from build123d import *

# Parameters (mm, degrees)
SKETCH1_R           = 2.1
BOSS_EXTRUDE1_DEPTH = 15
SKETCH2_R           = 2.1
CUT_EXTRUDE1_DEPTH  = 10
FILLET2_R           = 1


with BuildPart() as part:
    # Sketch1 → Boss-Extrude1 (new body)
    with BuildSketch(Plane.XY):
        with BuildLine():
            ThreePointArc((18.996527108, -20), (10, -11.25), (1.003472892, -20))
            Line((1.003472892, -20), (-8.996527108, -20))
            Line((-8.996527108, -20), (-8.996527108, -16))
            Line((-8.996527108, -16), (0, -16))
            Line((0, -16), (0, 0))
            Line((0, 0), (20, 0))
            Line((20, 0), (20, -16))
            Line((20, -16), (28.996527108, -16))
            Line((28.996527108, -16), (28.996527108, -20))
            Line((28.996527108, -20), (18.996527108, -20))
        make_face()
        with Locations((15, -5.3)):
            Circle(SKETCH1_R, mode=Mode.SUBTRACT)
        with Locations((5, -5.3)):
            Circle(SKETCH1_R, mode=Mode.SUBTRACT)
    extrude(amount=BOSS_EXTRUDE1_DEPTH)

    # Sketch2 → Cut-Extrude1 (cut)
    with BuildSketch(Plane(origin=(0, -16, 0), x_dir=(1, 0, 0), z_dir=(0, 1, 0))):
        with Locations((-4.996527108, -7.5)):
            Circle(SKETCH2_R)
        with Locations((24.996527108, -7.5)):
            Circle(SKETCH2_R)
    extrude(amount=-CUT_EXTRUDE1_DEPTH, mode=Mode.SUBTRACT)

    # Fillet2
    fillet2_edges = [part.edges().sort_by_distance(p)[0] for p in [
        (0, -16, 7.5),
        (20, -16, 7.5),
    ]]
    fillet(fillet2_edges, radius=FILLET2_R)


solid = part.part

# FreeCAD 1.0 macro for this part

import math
import FreeCAD as App
import Part
import Sketcher
from FreeCAD import Vector


def edges_at(feature, points):
    """Names of the edges that pass closest to the given points."""
    edges = feature.Shape.Edges
    near = lambda p: min(range(len(edges)), key=lambda i: edges[i].distToShape(Part.Vertex(*p))[0])
    return sorted({f"Edge{near(p) + 1}" for p in points})

doc = App.newDocument("Part")
params = doc.addObject("Spreadsheet::Sheet", "Params")
for row, (alias, value) in enumerate([
    ("sketch1_radius", "9 mm"),
    ("sketch1_diameter", "4.2 mm"),
    ("sketch1_width", "10 mm"),
    ("sketch1_width2", "20 mm"),
    ("sketch1_height", "4 mm"),
    ("pad1_length", "15 mm"),
    ("sketch2_diameter", "4.2 mm"),
    ("pocket1_length", "10 mm"),
    ("fillet_radius", "1 mm"),
], start=1):
    params.set(f"A{row}", alias)
    params.set(f"B{row}", "=" + value)
    params.setAlias(f"B{row}", alias)

body = doc.addObject("PartDesign::Body", "Body")

# Sketch on XY plane
sketch1 = body.newObject("Sketcher::SketchObject", "Sketch")
sketch1.AttachmentSupport = (doc.getObject("XY_Plane"), [""])
sketch1.MapMode = "FlatFace"
sketch1.addGeometry([
    Part.ArcOfCircle(Part.Circle(Vector(10, -20.2, 0), Vector(0, 0, 1), 9), math.radians(2), math.radians(178)),  # 0
    Part.LineSegment(Vector(19, -20, 0), Vector(29, -20, 0)),  # 1
    Part.LineSegment(Vector(29, -20, 0), Vector(29, -16, 0)),  # 2
    Part.LineSegment(Vector(29, -16, 0), Vector(20, -16, 0)),  # 3
    Part.LineSegment(Vector(20, -16, 0), Vector(20, 0, 0)),  # 4
    Part.LineSegment(Vector(20, 0, 0), Vector(0, 0, 0)),  # 5
    Part.LineSegment(Vector(0, 0, 0), Vector(0, -16, 0)),  # 6
    Part.LineSegment(Vector(0, -16, 0), Vector(-9, -16, 0)),  # 7
    Part.LineSegment(Vector(-9, -16, 0), Vector(-9, -20, 0)),  # 8
    Part.LineSegment(Vector(-9, -20, 0), Vector(1, -20, 0)),  # 9
    Part.Circle(Vector(15, -5.3, 0), Vector(0, 0, 1), 2.1),  # 10
    Part.Circle(Vector(5, -5.3, 0), Vector(0, 0, 1), 2.1),  # 11
], False)
sketch1.addConstraint([
    Sketcher.Constraint("Coincident", 0, 1, 1, 1),
    Sketcher.Constraint("Coincident", 1, 2, 2, 1),
    Sketcher.Constraint("Coincident", 2, 2, 3, 1),
    Sketcher.Constraint("Coincident", 3, 2, 4, 1),
    Sketcher.Constraint("Coincident", 4, 2, 5, 1),
    Sketcher.Constraint("Coincident", 5, 2, 6, 1),
    Sketcher.Constraint("Coincident", 6, 2, 7, 1),
    Sketcher.Constraint("Coincident", 7, 2, 8, 1),
    Sketcher.Constraint("Coincident", 8, 2, 9, 1),
    Sketcher.Constraint("Coincident", 9, 2, 0, 2),
    Sketcher.Constraint("Horizontal", 1),
    Sketcher.Constraint("Vertical", 2),
    Sketcher.Constraint("Horizontal", 3),
    Sketcher.Constraint("Vertical", 4),
    Sketcher.Constraint("Horizontal", 5),
    Sketcher.Constraint("Vertical", 6),
    Sketcher.Constraint("Horizontal", 7),
    Sketcher.Constraint("Vertical", 8),
    Sketcher.Constraint("Horizontal", 9),
    Sketcher.Constraint("Coincident", 5, 2, -1, 1),
    Sketcher.Constraint("Equal", 10, 11),
    Sketcher.Constraint("Horizontal", 10, 3, 11, 3),
    Sketcher.Constraint("Horizontal", 3, 2, 6, 2),
    Sketcher.Constraint("Horizontal", 1, 2, 8, 2),
    Sketcher.Constraint("Equal", 3, 7),
    Sketcher.Constraint("Equal", 1, 9),
    Sketcher.Constraint("Radius", 0, 9.0),
    Sketcher.Constraint("Diameter", 10, 4.2),
    Sketcher.Constraint("DistanceX", 1, 1, 1, 2, 10.0),
    Sketcher.Constraint("DistanceX", 5, 2, 5, 1, 20.0),
    Sketcher.Constraint("DistanceY", 2, 1, 2, 2, 4.0),
    Sketcher.Constraint("DistanceY", 4, 1, 4, 2, 16.0),
    Sketcher.Constraint("DistanceX", -1, 1, 10, 3, 15.0),
    Sketcher.Constraint("DistanceX", -1, 1, 11, 3, 5.0),
    Sketcher.Constraint("DistanceY", 10, 3, -1, 1, 5.3),
    Sketcher.Constraint("DistanceY", 0, 3, -1, 1, 20.25),
])
sketch1.setExpression("Constraints[26]", "Params.sketch1_radius")
sketch1.setExpression("Constraints[27]", "Params.sketch1_diameter")
sketch1.setExpression("Constraints[28]", "Params.sketch1_width")
sketch1.setExpression("Constraints[29]", "Params.sketch1_width2")
sketch1.setExpression("Constraints[30]", "Params.sketch1_height")
pad1 = body.newObject("PartDesign::Pad", "Pad")
pad1.Profile = sketch1
pad1.setExpression("Length", "Params.pad1_length")

# Sketch on XZ plane
sketch2 = body.newObject("Sketcher::SketchObject", "Sketch001")
sketch2.AttachmentSupport = (doc.getObject("XZ_Plane"), [""])
sketch2.MapMode = "FlatFace"
sketch2.AttachmentOffset = App.Placement(Vector(0, 0, 16), App.Rotation())
sketch2.addGeometry([
    Part.Circle(Vector(-5, 7.5, 0), Vector(0, 0, 1), 2.1),
    Part.Circle(Vector(25, 7.5, 0), Vector(0, 0, 1), 2.1),
], False)
sketch2.addConstraint([
    Sketcher.Constraint("Equal", 0, 1),
    Sketcher.Constraint("Horizontal", 0, 3, 1, 3),
    Sketcher.Constraint("Diameter", 0, 4.2),
    Sketcher.Constraint("DistanceY", -1, 1, 0, 3, 7.5),
    Sketcher.Constraint("DistanceX", 0, 3, -1, 1, 4.996527),
    Sketcher.Constraint("DistanceX", -1, 1, 1, 3, 24.996527),
])
sketch2.setExpression("Constraints[2]", "Params.sketch2_diameter")
pocket1 = body.newObject("PartDesign::Pocket", "Pocket")
pocket1.Profile = sketch2
pocket1.setExpression("Length", "Params.pocket1_length")
pocket1.Reversed = True
doc.recompute()

fillet = body.newObject("PartDesign::Fillet", "Fillet")
fillet.Base = (pocket1, edges_at(pocket1, [(0, -16, 7.5), (20, -16, 7.5)]))
fillet.setExpression("Radius", "Params.fillet_radius")

doc.recompute()
